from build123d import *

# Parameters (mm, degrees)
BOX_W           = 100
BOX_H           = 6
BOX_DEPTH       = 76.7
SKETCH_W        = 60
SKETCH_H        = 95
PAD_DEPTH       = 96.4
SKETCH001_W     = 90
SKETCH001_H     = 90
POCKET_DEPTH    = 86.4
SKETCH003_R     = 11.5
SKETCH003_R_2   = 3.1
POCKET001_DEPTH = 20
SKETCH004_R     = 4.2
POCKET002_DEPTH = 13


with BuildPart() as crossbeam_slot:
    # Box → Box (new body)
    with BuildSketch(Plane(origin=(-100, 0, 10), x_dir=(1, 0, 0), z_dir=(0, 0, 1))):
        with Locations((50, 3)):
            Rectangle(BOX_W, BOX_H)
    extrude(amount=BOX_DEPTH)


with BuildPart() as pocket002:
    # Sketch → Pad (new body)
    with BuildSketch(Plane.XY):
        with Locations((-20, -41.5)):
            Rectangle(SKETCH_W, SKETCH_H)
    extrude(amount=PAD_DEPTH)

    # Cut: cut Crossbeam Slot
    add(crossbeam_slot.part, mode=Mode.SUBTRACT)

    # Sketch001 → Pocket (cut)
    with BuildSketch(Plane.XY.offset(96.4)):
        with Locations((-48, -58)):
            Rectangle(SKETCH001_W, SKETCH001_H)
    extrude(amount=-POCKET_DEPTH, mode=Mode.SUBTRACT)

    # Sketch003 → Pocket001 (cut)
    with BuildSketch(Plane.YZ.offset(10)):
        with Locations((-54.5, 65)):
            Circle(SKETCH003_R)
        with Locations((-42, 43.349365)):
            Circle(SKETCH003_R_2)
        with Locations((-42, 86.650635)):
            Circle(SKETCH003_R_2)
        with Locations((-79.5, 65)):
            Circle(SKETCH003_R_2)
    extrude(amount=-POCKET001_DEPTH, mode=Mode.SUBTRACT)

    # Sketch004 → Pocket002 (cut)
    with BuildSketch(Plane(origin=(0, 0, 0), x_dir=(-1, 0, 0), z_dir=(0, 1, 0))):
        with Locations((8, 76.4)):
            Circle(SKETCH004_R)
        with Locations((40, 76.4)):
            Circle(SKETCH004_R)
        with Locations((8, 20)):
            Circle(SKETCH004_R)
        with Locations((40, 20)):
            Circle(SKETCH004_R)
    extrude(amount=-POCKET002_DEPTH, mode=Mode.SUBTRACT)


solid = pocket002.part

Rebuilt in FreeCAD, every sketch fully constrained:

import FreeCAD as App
import Part
import Sketcher

V = App.Vector


def add_polygon(sketch, points):
    """Adds a closed chain of lines whose ends are joined by coincident constraints."""
    first, n = sketch.GeometryCount, len(points)
    for a, b in zip(points, points[1:] + points[:1]):
        sketch.addGeometry(Part.LineSegment(App.Vector(*a, 0), App.Vector(*b, 0)), False)
    for i in range(n):
        sketch.addConstraint(Sketcher.Constraint("Coincident", first + i, 2, first + (i + 1) % n, 1))

doc = App.newDocument("Part")
body = doc.addObject("PartDesign::Body", "Body")

sketch1 = body.newObject("Sketcher::SketchObject", "Sketch")
sketch1.AttachmentSupport = (doc.getObject("XY_Plane"), [""])
sketch1.MapMode = "FlatFace"
sketch1.AttachmentOffset = App.Placement(V(0, 0, 10), App.Rotation())
add_polygon(sketch1, [(-100, 6), (-100, 0), (0, 0), (0, 6)])
sketch1.addConstraint([
    Sketcher.Constraint("Vertical", 0),
    Sketcher.Constraint("Horizontal", 1),
    Sketcher.Constraint("Vertical", 2),
    Sketcher.Constraint("Horizontal", 3),
    Sketcher.Constraint("Coincident", 1, 2, -1, 1),
    Sketcher.Constraint("DistanceX", 1, 1, 1, 2, 100.0),
    Sketcher.Constraint("DistanceY", 0, 2, 0, 1, 6.0),
])
pad1 = body.newObject("PartDesign::Pad", "Pad")
pad1.Profile = sketch1
pad1.Length = 76.7
body2 = doc.addObject("PartDesign::Body", "Body001")

sketch2 = body2.newObject("Sketcher::SketchObject", "Sketch001")
sketch2.AttachmentSupport = (doc.getObject("XY_Plane001"), [""])
sketch2.MapMode = "FlatFace"
add_polygon(sketch2, [(-50, 6), (-50, -89), (10, -89), (10, 6)])
sketch2.addConstraint([
    Sketcher.Constraint("Vertical", 0),
    Sketcher.Constraint("Horizontal", 1),
    Sketcher.Constraint("Vertical", 2),
    Sketcher.Constraint("Horizontal", 3),
    Sketcher.Constraint("DistanceX", 1, 1, 1, 2, 60.0),
    Sketcher.Constraint("DistanceY", 0, 2, 0, 1, 95.0),
    Sketcher.Constraint("DistanceX", 0, 2, -1, 1, 50.0),
    Sketcher.Constraint("DistanceY", 0, 2, -1, 1, 89.0),
])
pad2 = body2.newObject("PartDesign::Pad", "Pad001")
pad2.Profile = sketch2
pad2.Length = 96.4
doc.recompute()

boolean = body2.newObject("PartDesign::Boolean", "Boolean")
boolean.Type = "Cut"
boolean.addObjects([body])

sketch3 = body2.newObject("Sketcher::SketchObject", "Sketch002")
sketch3.AttachmentSupport = (doc.getObject("XY_Plane001"), [""])
sketch3.MapMode = "FlatFace"
sketch3.AttachmentOffset = App.Placement(V(0, 0, 96.4), App.Rotation())
add_polygon(sketch3, [(-93, -13), (-93, -103), (-3, -103), (-3, -13)])
sketch3.addConstraint([
    Sketcher.Constraint("Vertical", 0),
    Sketcher.Constraint("Horizontal", 1),
    Sketcher.Constraint("Vertical", 2),
    Sketcher.Constraint("Horizontal", 3),
    Sketcher.Constraint("Equal", 3, 0),
    Sketcher.Constraint("DistanceX", 1, 1, 1, 2, 90.0),
    Sketcher.Constraint("DistanceX", 0, 2, -1, 1, 93.0),
    Sketcher.Constraint("DistanceY", 0, 2, -1, 1, 103.0),
])
pocket1 = body2.newObject("PartDesign::Pocket", "Pocket")
pocket1.Profile = sketch3
pocket1.Length = 86.4

sketch4 = body2.newObject("Sketcher::SketchObject", "Sketch003")
sketch4.AttachmentSupport = (doc.getObject("YZ_Plane001"), [""])
sketch4.MapMode = "FlatFace"
sketch4.AttachmentOffset = App.Placement(V(0, 0, 10), App.Rotation())
sketch4.addGeometry([
    Part.Circle(V(-54.5, 65, 0), V(0, 0, 1), 11.5),
    Part.Circle(V(-42, 43.349365, 0), V(0, 0, 1), 3.1),
    Part.Circle(V(-42, 86.650635, 0), V(0, 0, 1), 3.1),
    Part.Circle(V(-79.5, 65, 0), V(0, 0, 1), 3.1),
], False)
sketch4.addConstraint([
    Sketcher.Constraint("Equal", 1, 2),
    Sketcher.Constraint("Equal", 2, 3),
    Sketcher.Constraint("Horizontal", 0, 3, 3, 3),
    Sketcher.Constraint("Vertical", 1, 3, 2, 3),
    Sketcher.Constraint("Diameter", 0, 23.0),
    Sketcher.Constraint("Diameter", 1, 6.2),
    Sketcher.Constraint("DistanceY", -1, 1, 0, 3, 65.0),
    Sketcher.Constraint("DistanceX", 1, 3, -1, 1, 42.0),
    Sketcher.Constraint("DistanceX", 3, 3, 0, 3, 25.0),
    Sketcher.Constraint("DistanceX", 0, 3, -1, 1, 54.5),
    Sketcher.Constraint("DistanceY", 1, 3, 2, 3, 43.30127),
    Sketcher.Constraint("DistanceY", -1, 1, 1, 3, 43.349365),
])
pocket2 = body2.newObject("PartDesign::Pocket", "Pocket001")
pocket2.Profile = sketch4
pocket2.Length = 20

sketch5 = body2.newObject("Sketcher::SketchObject", "Sketch004")
sketch5.AttachmentSupport = (doc.getObject("XZ_Plane001"), [""])
sketch5.MapMode = "FlatFace"
sketch5.addGeometry([
    Part.Circle(V(-8, 76.4, 0), V(0, 0, 1), 4.2),
    Part.Circle(V(-40, 76.4, 0), V(0, 0, 1), 4.2),
    Part.Circle(V(-8, 20, 0), V(0, 0, 1), 4.2),
    Part.Circle(V(-40, 20, 0), V(0, 0, 1), 4.2),
], False)
sketch5.addConstraint([
    Sketcher.Constraint("Equal", 0, 1),
    Sketcher.Constraint("Equal", 1, 2),
    Sketcher.Constraint("Equal", 2, 3),
    Sketcher.Constraint("Horizontal", 0, 3, 1, 3),
    Sketcher.Constraint("Horizontal", 2, 3, 3, 3),
    Sketcher.Constraint("Vertical", 0, 3, 2, 3),
    Sketcher.Constraint("Vertical", 1, 3, 3, 3),
    Sketcher.Constraint("Diameter", 0, 8.4),
    Sketcher.Constraint("DistanceX", 0, 3, -1, 1, 8.0),
    Sketcher.Constraint("DistanceX", 1, 3, -1, 1, 40.0),
    Sketcher.Constraint("DistanceY", -1, 1, 2, 3, 20.0),
    Sketcher.Constraint("DistanceY", -1, 1, 0, 3, 76.4),
])
pocket3 = body2.newObject("PartDesign::Pocket", "Pocket002")
pocket3.Profile = sketch5
pocket3.Length = 13
pocket3.Reversed = True

doc.recompute()
